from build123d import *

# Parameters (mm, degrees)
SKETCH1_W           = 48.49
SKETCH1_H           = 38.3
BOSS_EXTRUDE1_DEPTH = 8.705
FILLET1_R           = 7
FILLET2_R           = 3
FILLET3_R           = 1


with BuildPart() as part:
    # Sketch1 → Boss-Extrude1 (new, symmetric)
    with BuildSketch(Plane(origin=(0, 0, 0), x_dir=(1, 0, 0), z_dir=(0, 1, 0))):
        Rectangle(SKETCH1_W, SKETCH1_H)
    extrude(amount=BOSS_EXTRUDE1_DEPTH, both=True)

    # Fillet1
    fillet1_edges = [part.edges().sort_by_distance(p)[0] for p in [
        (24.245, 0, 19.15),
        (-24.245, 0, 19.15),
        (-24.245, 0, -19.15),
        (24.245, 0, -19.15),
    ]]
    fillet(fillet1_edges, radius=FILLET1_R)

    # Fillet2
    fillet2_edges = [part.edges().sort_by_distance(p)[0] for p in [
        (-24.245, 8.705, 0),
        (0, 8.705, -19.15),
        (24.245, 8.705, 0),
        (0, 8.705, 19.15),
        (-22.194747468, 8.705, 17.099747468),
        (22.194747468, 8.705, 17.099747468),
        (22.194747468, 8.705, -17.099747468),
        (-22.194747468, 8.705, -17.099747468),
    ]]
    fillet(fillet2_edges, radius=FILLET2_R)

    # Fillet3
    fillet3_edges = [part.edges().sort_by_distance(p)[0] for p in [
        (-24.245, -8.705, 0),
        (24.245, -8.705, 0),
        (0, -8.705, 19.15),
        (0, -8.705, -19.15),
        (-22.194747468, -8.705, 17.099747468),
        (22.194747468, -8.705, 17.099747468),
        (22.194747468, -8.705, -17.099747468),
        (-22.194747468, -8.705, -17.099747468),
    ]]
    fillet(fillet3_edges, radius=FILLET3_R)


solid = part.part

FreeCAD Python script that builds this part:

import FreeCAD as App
import Part
import Sketcher
from FreeCAD import Vector
Q = App.Units.Quantity


def edges_at(feature, points):
    """Names of the edges that pass closest to the given points."""
    edges = feature.Shape.Edges
    near = lambda p: min(range(len(edges)), key=lambda i: edges[i].distToShape(Part.Vertex(*p))[0])
    return sorted({f"Edge{near(p) + 1}" for p in points})

doc = App.newDocument("Part")
body = doc.addObject("PartDesign::Body", "Body")

# Sketch on XZ plane
sketch1 = body.newObject("Sketcher::SketchObject", "Sketch")
sketch1.AttachmentSupport = (doc.getObject("XZ_Plane"), [""])
sketch1.MapMode = "FlatFace"
sketch1.addGeometry([
    Part.LineSegment(Vector(-24.245, -19.15, 0), Vector(-24.245, 19.15, 0)),
    Part.LineSegment(Vector(-24.245, 19.15, 0), Vector(24.245, 19.15, 0)),
    Part.LineSegment(Vector(24.245, 19.15, 0), Vector(24.245, -19.15, 0)),
    Part.LineSegment(Vector(24.245, -19.15, 0), Vector(-24.245, -19.15, 0)),
], False)
sketch1.addConstraint([
    Sketcher.Constraint("Coincident", 0, 2, 1, 1),
    Sketcher.Constraint("Coincident", 1, 2, 2, 1),
    Sketcher.Constraint("Coincident", 2, 2, 3, 1),
    Sketcher.Constraint("Coincident", 3, 2, 0, 1),
    Sketcher.Constraint("Vertical", 0),
    Sketcher.Constraint("Horizontal", 1),
    Sketcher.Constraint("Vertical", 2),
    Sketcher.Constraint("Horizontal", 3),
    Sketcher.Constraint("Symmetric", 0, 2, 2, 2, -1, 1),
    Sketcher.Constraint("DistanceY", 0, 1, 0, 2, Q("38.3 mm")),
    Sketcher.Constraint("DistanceX", 1, 1, 1, 2, Q("48.49 mm")),
])
pad1 = body.newObject("PartDesign::Pad", "Pad")
pad1.Profile = sketch1
pad1.Length = 17.41
pad1.Midplane = True
doc.recompute()

fillet = body.newObject("PartDesign::Fillet", "Fillet")
fillet.Base = (pad1, edges_at(pad1, [
    (24.245, 0, 19.15),
    (-24.245, 0, 19.15),
    (-24.245, 0, -19.15),
    (24.245, 0, -19.15),
]))
fillet.Radius = 7
doc.recompute()

fillet2 = body.newObject("PartDesign::Fillet", "Fillet001")
fillet2.Base = (fillet, edges_at(fillet, [
    (-24.245, 8.705, 0),
    (0, 8.705, -19.15),
    (24.245, 8.705, 0),
    (0, 8.705, 19.15),
    (-22.195, 8.705, 17.1),
    (22.195, 8.705, 17.1),
    (22.195, 8.705, -17.1),
    (-22.195, 8.705, -17.1),
]))
fillet2.Radius = 3
doc.recompute()

fillet3 = body.newObject("PartDesign::Fillet", "Fillet002")
fillet3.Base = (fillet2, edges_at(fillet2, [
    (-24.245, -8.705, 0),
    (24.245, -8.705, 0),
    (0, -8.705, 19.15),
    (0, -8.705, -19.15),
    (-22.195, -8.705, 17.1),
    (22.195, -8.705, 17.1),
    (22.195, -8.705, -17.1),
    (-22.195, -8.705, -17.1),
]))
fillet3.Radius = 1

doc.recompute()
